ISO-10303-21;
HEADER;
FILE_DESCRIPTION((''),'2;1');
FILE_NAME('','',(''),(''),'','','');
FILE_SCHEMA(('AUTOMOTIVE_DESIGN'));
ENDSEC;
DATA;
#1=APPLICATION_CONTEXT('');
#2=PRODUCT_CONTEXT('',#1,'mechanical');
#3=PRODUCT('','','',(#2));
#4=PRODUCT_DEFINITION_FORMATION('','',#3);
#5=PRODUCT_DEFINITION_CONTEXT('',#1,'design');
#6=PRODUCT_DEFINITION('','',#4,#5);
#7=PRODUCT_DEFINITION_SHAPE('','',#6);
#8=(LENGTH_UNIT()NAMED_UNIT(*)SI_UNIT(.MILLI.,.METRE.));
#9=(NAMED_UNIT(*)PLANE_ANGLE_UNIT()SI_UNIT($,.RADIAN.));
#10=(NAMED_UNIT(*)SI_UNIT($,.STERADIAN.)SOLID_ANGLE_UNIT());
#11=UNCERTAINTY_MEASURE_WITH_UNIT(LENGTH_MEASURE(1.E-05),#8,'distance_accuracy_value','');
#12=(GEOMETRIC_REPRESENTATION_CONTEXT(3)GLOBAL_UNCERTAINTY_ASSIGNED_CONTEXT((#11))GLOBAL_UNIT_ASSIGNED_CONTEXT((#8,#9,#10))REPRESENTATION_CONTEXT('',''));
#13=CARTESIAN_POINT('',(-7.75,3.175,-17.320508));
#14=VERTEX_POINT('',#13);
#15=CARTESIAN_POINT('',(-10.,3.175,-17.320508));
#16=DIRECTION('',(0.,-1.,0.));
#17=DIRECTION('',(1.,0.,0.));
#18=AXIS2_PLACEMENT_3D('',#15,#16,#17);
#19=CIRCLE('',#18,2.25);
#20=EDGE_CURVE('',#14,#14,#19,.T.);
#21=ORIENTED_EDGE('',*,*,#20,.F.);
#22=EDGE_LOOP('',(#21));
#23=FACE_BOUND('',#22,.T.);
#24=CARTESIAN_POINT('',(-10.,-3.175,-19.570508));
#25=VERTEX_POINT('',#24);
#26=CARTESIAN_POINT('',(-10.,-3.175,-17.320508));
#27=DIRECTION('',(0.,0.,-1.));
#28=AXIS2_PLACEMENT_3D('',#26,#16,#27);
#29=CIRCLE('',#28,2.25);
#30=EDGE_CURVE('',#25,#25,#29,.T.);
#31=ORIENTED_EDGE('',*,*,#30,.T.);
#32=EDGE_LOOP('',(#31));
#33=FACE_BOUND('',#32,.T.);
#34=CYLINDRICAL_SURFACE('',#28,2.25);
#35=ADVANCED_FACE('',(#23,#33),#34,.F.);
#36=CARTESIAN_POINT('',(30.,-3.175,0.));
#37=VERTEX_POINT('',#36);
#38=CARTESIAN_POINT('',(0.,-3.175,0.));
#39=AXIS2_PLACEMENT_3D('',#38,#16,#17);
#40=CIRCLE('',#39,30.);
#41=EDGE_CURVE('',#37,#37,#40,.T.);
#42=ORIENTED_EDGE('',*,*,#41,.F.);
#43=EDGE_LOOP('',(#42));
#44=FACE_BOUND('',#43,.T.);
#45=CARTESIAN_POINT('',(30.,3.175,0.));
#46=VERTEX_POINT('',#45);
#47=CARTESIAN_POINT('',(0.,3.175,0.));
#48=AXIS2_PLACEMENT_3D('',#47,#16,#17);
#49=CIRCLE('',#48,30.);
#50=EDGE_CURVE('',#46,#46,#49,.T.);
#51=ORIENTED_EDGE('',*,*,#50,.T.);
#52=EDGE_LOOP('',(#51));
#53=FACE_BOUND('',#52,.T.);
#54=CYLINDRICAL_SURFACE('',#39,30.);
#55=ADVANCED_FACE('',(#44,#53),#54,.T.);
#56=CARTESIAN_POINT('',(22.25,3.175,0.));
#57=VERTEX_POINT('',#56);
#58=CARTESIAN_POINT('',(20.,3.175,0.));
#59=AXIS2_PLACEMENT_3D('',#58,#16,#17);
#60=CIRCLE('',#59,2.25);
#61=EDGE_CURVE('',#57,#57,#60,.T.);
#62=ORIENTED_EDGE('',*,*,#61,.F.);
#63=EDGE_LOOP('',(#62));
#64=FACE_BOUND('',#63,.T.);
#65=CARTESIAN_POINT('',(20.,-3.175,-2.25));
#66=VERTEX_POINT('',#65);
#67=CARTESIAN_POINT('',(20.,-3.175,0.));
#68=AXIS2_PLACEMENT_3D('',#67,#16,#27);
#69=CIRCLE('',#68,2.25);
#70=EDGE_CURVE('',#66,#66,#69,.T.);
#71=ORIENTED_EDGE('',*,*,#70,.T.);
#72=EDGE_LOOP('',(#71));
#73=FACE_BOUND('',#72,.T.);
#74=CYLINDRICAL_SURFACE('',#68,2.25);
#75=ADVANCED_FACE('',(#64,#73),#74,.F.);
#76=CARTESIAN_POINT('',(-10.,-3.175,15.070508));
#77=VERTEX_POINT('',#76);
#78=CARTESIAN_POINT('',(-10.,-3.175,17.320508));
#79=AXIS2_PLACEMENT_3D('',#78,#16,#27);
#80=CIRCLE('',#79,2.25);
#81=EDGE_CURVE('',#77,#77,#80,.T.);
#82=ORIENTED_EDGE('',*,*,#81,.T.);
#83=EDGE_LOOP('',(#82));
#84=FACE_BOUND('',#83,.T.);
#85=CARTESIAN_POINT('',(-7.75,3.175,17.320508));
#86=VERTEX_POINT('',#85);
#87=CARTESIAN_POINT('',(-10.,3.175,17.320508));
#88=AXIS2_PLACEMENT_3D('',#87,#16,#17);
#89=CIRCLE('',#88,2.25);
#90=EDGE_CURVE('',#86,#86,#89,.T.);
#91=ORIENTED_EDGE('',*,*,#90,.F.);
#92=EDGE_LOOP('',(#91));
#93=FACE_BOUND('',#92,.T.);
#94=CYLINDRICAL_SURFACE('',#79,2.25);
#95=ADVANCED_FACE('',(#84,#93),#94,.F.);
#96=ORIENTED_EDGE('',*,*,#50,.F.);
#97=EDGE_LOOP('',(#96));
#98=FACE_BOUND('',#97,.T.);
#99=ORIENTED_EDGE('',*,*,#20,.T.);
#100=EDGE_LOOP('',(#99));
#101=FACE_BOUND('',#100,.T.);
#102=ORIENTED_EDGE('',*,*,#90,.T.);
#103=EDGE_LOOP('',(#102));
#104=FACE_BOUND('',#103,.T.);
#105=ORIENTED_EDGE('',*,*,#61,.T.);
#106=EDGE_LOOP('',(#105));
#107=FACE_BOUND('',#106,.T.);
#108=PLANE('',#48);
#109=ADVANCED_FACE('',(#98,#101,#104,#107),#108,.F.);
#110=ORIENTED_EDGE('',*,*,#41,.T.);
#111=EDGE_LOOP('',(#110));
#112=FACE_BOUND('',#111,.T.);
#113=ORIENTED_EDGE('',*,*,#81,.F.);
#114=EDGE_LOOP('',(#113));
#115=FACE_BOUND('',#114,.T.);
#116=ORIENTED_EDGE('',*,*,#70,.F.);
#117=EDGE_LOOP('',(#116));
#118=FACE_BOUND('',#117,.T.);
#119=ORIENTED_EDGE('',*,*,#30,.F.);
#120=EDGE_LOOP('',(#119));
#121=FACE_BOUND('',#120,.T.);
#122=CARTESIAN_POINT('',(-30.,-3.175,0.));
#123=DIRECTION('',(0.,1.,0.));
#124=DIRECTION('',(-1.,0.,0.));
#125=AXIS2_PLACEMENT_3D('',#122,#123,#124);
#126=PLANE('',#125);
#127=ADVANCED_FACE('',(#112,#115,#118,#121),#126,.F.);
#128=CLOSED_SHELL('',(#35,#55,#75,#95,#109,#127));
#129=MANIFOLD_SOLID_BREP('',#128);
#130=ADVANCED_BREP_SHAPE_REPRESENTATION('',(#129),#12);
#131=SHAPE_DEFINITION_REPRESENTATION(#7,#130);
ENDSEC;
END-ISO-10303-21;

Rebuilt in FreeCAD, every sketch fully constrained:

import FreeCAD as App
import Part
import Sketcher

V = App.Vector


def add_polygon(sketch, points):
    """Adds a closed chain of lines whose ends are joined by coincident constraints."""
    first, n = sketch.GeometryCount, len(points)
    for a, b in zip(points, points[1:] + points[:1]):
        sketch.addGeometry(Part.LineSegment(App.Vector(*a, 0), App.Vector(*b, 0)), False)
    for i in range(n):
        sketch.addConstraint(Sketcher.Constraint("Coincident", first + i, 2, first + (i + 1) % n, 1))

doc = App.newDocument("Part")
body = doc.addObject("PartDesign::Body", "Body")

# Sketch on XY plane
sketch1 = body.newObject("Sketcher::SketchObject", "Sketch")
sketch1.AttachmentSupport = (doc.getObject("XY_Plane"), [""])
sketch1.MapMode = "FlatFace"
add_polygon(sketch1, [(-30, 3), (-30, -3), (0, -3), (0, 3)])  # lines 0-3
sketch1.addConstraint([
    Sketcher.Constraint("Vertical", 0),
    Sketcher.Constraint("Horizontal", 1),
    Sketcher.Constraint("Vertical", 2),
    Sketcher.Constraint("Horizontal", 3),
    Sketcher.Constraint("Symmetric", 1, 2, 2, 2, -1, 1),
    Sketcher.Constraint("DistanceX", 1, 1, 1, 2, 30.0),
    Sketcher.Constraint("DistanceY", 0, 2, 0, 1, 6.35),
])
revolution = body.newObject("PartDesign::Revolution", "Revolution")
revolution.Profile = sketch1
revolution.ReferenceAxis = (sketch1, ["V_Axis"])
revolution.Angle = 360

# Sketch on XZ plane
sketch2 = body.newObject("Sketcher::SketchObject", "Sketch001")
sketch2.AttachmentSupport = (doc.getObject("XZ_Plane"), [""])
sketch2.MapMode = "FlatFace"
sketch2.AttachmentOffset = App.Placement(V(0, 0, 3.175), App.Rotation())
sketch2.addGeometry([
    Part.Circle(V(20, 0, 0), V(0, 0, 1), 2.2),
    Part.Circle(V(-10, 17.3, 0), V(0, 0, 1), 2.2),
    Part.Circle(V(-10, -17.3, 0), V(0, 0, 1), 2.2),
], False)
sketch2.addConstraint([
    Sketcher.Constraint("Equal", 0, 1),
    Sketcher.Constraint("Equal", 1, 2),
    Sketcher.Constraint("Symmetric", 1, 3, 2, 3, -1),
    Sketcher.Constraint("PointOnObject", 0, 3, -1),
    Sketcher.Constraint("Diameter", 0, 4.5),
    Sketcher.Constraint("DistanceX", -1, 1, 0, 3, 20.0),
    Sketcher.Constraint("DistanceX", 1, 3, -1, 1, 10.0),
    Sketcher.Constraint("DistanceY", -1, 1, 1, 3, 17.320508),
])
doc.recompute()
hole = body.newObject("PartDesign::Hole", "Hole")
hole.Profile = sketch2
hole.ThreadType = "None"
hole.Diameter = 4.5
hole.DepthType = "Dimension"
hole.Depth = 10.1
hole.DrillPoint = "Angled"
hole.DrillPointAngle = 118

doc.recompute()
